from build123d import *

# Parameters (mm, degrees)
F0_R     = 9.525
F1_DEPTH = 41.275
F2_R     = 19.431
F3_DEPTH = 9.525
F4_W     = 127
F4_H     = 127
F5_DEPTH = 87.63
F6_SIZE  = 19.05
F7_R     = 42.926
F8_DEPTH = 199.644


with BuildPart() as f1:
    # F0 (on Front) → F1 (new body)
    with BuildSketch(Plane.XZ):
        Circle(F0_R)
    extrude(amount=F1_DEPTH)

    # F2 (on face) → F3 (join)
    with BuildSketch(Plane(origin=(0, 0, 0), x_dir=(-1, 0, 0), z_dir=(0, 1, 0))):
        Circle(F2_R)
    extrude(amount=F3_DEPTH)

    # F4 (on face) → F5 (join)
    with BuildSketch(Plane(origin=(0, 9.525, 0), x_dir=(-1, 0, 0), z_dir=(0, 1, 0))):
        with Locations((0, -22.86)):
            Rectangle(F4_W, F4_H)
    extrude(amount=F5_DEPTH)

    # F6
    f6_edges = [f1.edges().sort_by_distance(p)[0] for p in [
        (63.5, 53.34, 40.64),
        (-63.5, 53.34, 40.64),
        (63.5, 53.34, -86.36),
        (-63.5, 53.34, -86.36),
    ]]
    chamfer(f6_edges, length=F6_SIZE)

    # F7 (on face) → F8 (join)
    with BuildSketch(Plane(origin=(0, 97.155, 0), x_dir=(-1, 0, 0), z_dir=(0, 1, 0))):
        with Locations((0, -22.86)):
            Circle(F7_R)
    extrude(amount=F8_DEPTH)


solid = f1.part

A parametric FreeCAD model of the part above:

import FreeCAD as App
import Part
import Sketcher

V = App.Vector
Q = App.Units.Quantity


def edges_at(feature, points):
    """Names of the edges that pass closest to the given points."""
    edges = feature.Shape.Edges
    near = lambda p: min(range(len(edges)), key=lambda i: edges[i].distToShape(Part.Vertex(*p))[0])
    return sorted({f"Edge{near(p) + 1}" for p in points})

doc = App.newDocument("Part")
params = doc.addObject("Spreadsheet::Sheet", "Params")
for row, (alias, value) in enumerate([
    ("sketch1_diameter", "0.75 in"),
    ("pad1_length", "1.625 in"),
    ("sketch2_diameter", "1.53 in"),
    ("pad2_length", "0.375 in"),
    ("sketch3_width", "5 in"),
    ("pad3_length", "3.45 in"),
    ("chamfer_size", "0.75 in"),
    ("sketch4_diameter", "3.38 in"),
    ("pad4_length", "7.86 in"),
], start=1):
    params.set(f"A{row}", alias)
    params.set(f"B{row}", "=" + value)
    params.setAlias(f"B{row}", alias)

body = doc.addObject("PartDesign::Body", "Body")

sketch1 = doc.addObject("Sketcher::SketchObject", "Sketch")
body.addObject(sketch1)
sketch1.AttachmentSupport = (doc.XZ_Plane, [""])
sketch1.MapMode = "FlatFace"
sketch1.addGeometry(Part.Circle(V(0, 0, 0), V(0, 0, 1), 10), False)
sketch1.addConstraint(Sketcher.Constraint("Coincident", 0, 3, -1, 1))
sketch1.addConstraint(Sketcher.Constraint("Diameter", 0, Q("0.75 in")))
sketch1.setExpression("Constraints[1]", "Params.sketch1_diameter")
pad1 = doc.addObject("PartDesign::Pad", "Pad")
body.addObject(pad1)
pad1.Profile = sketch1
pad1.setExpression("Length", "Params.pad1_length")

sketch2 = doc.addObject("Sketcher::SketchObject", "Sketch001")
body.addObject(sketch2)
sketch2.AttachmentSupport = (doc.XZ_Plane, [""])
sketch2.MapMode = "FlatFace"
sketch2.addGeometry(Part.Circle(V(0, 0, 0), V(0, 0, 1), 19), False)
sketch2.addConstraint(Sketcher.Constraint("Coincident", 0, 3, -1, 1))
sketch2.addConstraint(Sketcher.Constraint("Diameter", 0, Q("1.53 in")))
sketch2.setExpression("Constraints[1]", "Params.sketch2_diameter")
pad2 = doc.addObject("PartDesign::Pad", "Pad001")
body.addObject(pad2)
pad2.Profile = sketch2
pad2.setExpression("Length", "Params.pad2_length")
pad2.Reversed = True

sketch3 = doc.addObject("Sketcher::SketchObject", "Sketch002")
body.addObject(sketch3)
sketch3.AttachmentSupport = (doc.XZ_Plane, [""])
sketch3.MapMode = "FlatFace"
sketch3.AttachmentOffset = App.Placement(V(0, 0, -0.375 * 25.4), App.Rotation())
sketch3.addGeometry(Part.LineSegment(V(64, 41, 0), V(64, -86, 0)), False)
sketch3.addGeometry(Part.LineSegment(V(64, -86, 0), V(-64, -86, 0)), False)
sketch3.addGeometry(Part.LineSegment(V(-64, -86, 0), V(-64, 41, 0)), False)
sketch3.addGeometry(Part.LineSegment(V(-64, 41, 0), V(64, 41, 0)), False)
sketch3.addConstraint(Sketcher.Constraint("Coincident", 0, 2, 1, 1))
sketch3.addConstraint(Sketcher.Constraint("Coincident", 1, 2, 2, 1))
sketch3.addConstraint(Sketcher.Constraint("Coincident", 2, 2, 3, 1))
sketch3.addConstraint(Sketcher.Constraint("Coincident", 3, 2, 0, 1))
sketch3.addConstraint(Sketcher.Constraint("Vertical", 0))
sketch3.addConstraint(Sketcher.Constraint("Horizontal", 1))
sketch3.addConstraint(Sketcher.Constraint("Vertical", 2))
sketch3.addConstraint(Sketcher.Constraint("Horizontal", 3))
sketch3.addConstraint(Sketcher.Constraint("Equal", 3, 0))
sketch3.addConstraint(Sketcher.Constraint("DistanceX", 1, 2, 1, 1, Q("5 in")))
sketch3.addConstraint(Sketcher.Constraint("DistanceX", -1, 1, 0, 2, Q("2.5 in")))
sketch3.addConstraint(Sketcher.Constraint("DistanceY", 0, 2, -1, 1, Q("3.4 in")))
sketch3.setExpression("Constraints[9]", "Params.sketch3_width")
pad3 = doc.addObject("PartDesign::Pad", "Pad002")
body.addObject(pad3)
pad3.Profile = sketch3
pad3.setExpression("Length", "Params.pad3_length")
pad3.Reversed = True
doc.recompute()

chamfer = doc.addObject("PartDesign::Chamfer", "Chamfer")
body.addObject(chamfer)
chamfer.Base = (pad3, edges_at(pad3, [
    (63.5, 53.34, 40.64),
    (-63.5, 53.34, 40.64),
    (63.5, 53.34, -86.36),
    (-63.5, 53.34, -86.36),
]))
chamfer.setExpression("Size", "Params.chamfer_size")

sketch4 = doc.addObject("Sketcher::SketchObject", "Sketch003")
body.addObject(sketch4)
sketch4.AttachmentSupport = (doc.XZ_Plane, [""])
sketch4.MapMode = "FlatFace"
sketch4.AttachmentOffset = App.Placement(V(0, 0, -3.825 * 25.4), App.Rotation())
sketch4.addGeometry(Part.Circle(V(0, -23, 0), V(0, 0, 1), 43), False)
sketch4.addConstraint(Sketcher.Constraint("PointOnObject", 0, 3, -2))
sketch4.addConstraint(Sketcher.Constraint("Diameter", 0, Q("3.38 in")))
sketch4.addConstraint(Sketcher.Constraint("DistanceY", 0, 3, -1, 1, Q("0.9 in")))
sketch4.setExpression("Constraints[1]", "Params.sketch4_diameter")
pad4 = doc.addObject("PartDesign::Pad", "Pad003")
body.addObject(pad4)
pad4.Profile = sketch4
pad4.setExpression("Length", "Params.pad4_length")
pad4.Reversed = True

doc.recompute()
